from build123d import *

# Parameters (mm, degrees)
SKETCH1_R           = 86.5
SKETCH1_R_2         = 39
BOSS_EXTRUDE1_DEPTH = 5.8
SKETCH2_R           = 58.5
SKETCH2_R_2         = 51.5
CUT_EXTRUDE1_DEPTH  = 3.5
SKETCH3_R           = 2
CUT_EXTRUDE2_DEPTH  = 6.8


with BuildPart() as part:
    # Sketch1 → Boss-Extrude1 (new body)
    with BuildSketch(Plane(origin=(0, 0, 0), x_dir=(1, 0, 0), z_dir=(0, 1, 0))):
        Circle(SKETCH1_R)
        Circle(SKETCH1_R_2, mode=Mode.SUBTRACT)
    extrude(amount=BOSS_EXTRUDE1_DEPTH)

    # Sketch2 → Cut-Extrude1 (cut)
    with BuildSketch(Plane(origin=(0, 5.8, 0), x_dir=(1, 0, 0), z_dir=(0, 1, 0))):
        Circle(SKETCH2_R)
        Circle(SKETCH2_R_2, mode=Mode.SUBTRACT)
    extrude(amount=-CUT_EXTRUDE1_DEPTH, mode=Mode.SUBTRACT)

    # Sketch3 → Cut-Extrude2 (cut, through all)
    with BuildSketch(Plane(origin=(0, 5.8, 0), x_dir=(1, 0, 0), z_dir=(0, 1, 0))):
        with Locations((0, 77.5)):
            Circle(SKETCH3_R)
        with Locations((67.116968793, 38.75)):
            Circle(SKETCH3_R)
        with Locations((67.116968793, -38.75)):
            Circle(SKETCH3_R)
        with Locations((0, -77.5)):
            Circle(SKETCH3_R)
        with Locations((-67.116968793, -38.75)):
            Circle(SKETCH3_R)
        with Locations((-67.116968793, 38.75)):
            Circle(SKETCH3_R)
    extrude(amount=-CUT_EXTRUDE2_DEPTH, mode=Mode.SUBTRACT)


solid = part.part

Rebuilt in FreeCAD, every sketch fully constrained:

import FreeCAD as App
import Part
import Sketcher

V = App.Vector

doc = App.newDocument("Part")
body = doc.addObject("PartDesign::Body", "Body")

# Sketch on XZ plane
sketch1 = body.newObject("Sketcher::SketchObject", "Sketch")
sketch1.AttachmentSupport = (doc.getObject("XZ_Plane"), [""])
sketch1.MapMode = "FlatFace"
sketch1.addGeometry(Part.Circle(V(0, 0, 0), V(0, 0, 1), 86.5), False)
sketch1.addGeometry(Part.Circle(V(0, 0, 0), V(0, 0, 1), 39), False)
sketch1.addConstraint(Sketcher.Constraint("Coincident", 0, 3, -1, 1))
sketch1.addConstraint(Sketcher.Constraint("Coincident", 1, 3, -1, 1))
sketch1.addConstraint(Sketcher.Constraint("Diameter", 0, 173.0))
sketch1.addConstraint(Sketcher.Constraint("Diameter", 1, 78.0))
pad1 = body.newObject("PartDesign::Pad", "Pad")
pad1.Profile = sketch1
pad1.Length = 5.8
pad1.Reversed = True

# Sketch on XZ plane
sketch2 = body.newObject("Sketcher::SketchObject", "Sketch001")
sketch2.AttachmentSupport = (doc.getObject("XZ_Plane"), [""])
sketch2.MapMode = "FlatFace"
sketch2.AttachmentOffset = App.Placement(V(0, 0, -5.8), App.Rotation())
sketch2.addGeometry(Part.Circle(V(0, 0, 0), V(0, 0, 1), 58.5), False)
sketch2.addGeometry(Part.Circle(V(0, 0, 0), V(0, 0, 1), 51.5), False)
sketch2.addConstraint(Sketcher.Constraint("Coincident", 0, 3, -1, 1))
sketch2.addConstraint(Sketcher.Constraint("Coincident", 1, 3, -1, 1))
sketch2.addConstraint(Sketcher.Constraint("Diameter", 0, 117.0))
sketch2.addConstraint(Sketcher.Constraint("Diameter", 1, 103.0))
pocket1 = body.newObject("PartDesign::Pocket", "Pocket")
pocket1.Profile = sketch2
pocket1.Length = 3.5
pocket1.Reversed = True

# Sketch on XZ plane
sketch3 = body.newObject("Sketcher::SketchObject", "Sketch002")
sketch3.AttachmentSupport = (doc.getObject("XZ_Plane"), [""])
sketch3.MapMode = "FlatFace"
sketch3.AttachmentOffset = App.Placement(V(0, 0, -5.8), App.Rotation())
sketch3.addGeometry(Part.Circle(V(0, -77.5, 0), V(0, 0, 1), 2), False)
sketch3.addGeometry(Part.Circle(V(67.116969, -38.75, 0), V(0, 0, 1), 2), False)
sketch3.addGeometry(Part.Circle(V(67.116969, 38.75, 0), V(0, 0, 1), 2), False)
sketch3.addGeometry(Part.Circle(V(0, 77.5, 0), V(0, 0, 1), 2), False)
sketch3.addGeometry(Part.Circle(V(-67.116969, 38.75, 0), V(0, 0, 1), 2), False)
sketch3.addGeometry(Part.Circle(V(-67.116969, -38.75, 0), V(0, 0, 1), 2), False)
sketch3.addConstraint(Sketcher.Constraint("Equal", 0, 1))
sketch3.addConstraint(Sketcher.Constraint("Equal", 1, 2))
sketch3.addConstraint(Sketcher.Constraint("Equal", 2, 3))
sketch3.addConstraint(Sketcher.Constraint("Equal", 3, 4))
sketch3.addConstraint(Sketcher.Constraint("Equal", 4, 5))
sketch3.addConstraint(Sketcher.Constraint("Symmetric", 0, 3, 3, 3, -1, 1))
sketch3.addConstraint(Sketcher.Constraint("Symmetric", 1, 3, 4, 3, -1, 1))
sketch3.addConstraint(Sketcher.Constraint("Symmetric", 2, 3, 5, 3, -1, 1))
sketch3.addConstraint(Sketcher.Constraint("Symmetric", 2, 3, 4, 3, -2))
sketch3.addConstraint(Sketcher.Constraint("PointOnObject", 0, 3, -2))
sketch3.addConstraint(Sketcher.Constraint("Diameter", 0, 4.0))
sketch3.addConstraint(Sketcher.Constraint("DistanceY", 0, 3, 3, 3, 155.0))
sketch3.addConstraint(Sketcher.Constraint("DistanceY", 1, 3, 2, 3, 77.5))
sketch3.addConstraint(Sketcher.Constraint("DistanceX", -1, 1, 1, 3, 67.116969))
pocket2 = body.newObject("PartDesign::Pocket", "Pocket001")
pocket2.Profile = sketch3
pocket2.Type = "ThroughAll"
pocket2.Reversed = True

doc.recompute()
